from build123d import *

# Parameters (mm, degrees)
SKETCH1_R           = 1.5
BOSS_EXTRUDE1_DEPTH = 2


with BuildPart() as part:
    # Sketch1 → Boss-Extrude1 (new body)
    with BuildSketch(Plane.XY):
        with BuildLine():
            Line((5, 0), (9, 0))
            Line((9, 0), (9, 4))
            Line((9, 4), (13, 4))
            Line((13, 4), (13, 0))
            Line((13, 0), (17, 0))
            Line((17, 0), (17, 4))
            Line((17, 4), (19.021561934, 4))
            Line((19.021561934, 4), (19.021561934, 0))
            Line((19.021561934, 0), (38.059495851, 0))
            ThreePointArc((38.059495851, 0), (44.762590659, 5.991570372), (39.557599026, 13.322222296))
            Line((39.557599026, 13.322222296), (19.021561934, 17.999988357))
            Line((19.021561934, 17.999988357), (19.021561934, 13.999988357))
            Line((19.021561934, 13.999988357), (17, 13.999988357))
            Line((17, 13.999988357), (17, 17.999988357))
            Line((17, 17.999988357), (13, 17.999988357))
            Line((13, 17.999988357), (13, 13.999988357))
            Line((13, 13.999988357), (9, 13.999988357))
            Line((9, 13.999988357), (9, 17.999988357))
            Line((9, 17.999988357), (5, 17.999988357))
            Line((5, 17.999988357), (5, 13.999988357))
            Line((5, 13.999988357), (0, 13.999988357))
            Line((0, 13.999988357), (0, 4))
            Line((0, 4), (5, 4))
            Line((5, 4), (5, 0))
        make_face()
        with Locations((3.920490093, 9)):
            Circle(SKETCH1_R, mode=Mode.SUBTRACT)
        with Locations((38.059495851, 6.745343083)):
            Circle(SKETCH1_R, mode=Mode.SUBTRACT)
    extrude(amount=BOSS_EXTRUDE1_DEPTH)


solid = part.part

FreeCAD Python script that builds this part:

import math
import FreeCAD as App
import Part
import Sketcher
from FreeCAD import Vector

doc = App.newDocument("Part")
body = doc.addObject("PartDesign::Body", "Body")

# Sketch on XY plane
sketch1 = doc.addObject("Sketcher::SketchObject", "Sketch")
body.addObject(sketch1)
sketch1.AttachmentSupport = (doc.XY_Plane, [""])
sketch1.MapMode = "FlatFace"
sketch1.addGeometry([
    Part.LineSegment(Vector(5, 0, 0), Vector(9, 0, 0)),  # 0
    Part.LineSegment(Vector(9, 0, 0), Vector(9, 4, 0)),  # 1
    Part.LineSegment(Vector(9, 4, 0), Vector(13, 4, 0)),  # 2
    Part.LineSegment(Vector(13, 4, 0), Vector(13, 0, 0)),  # 3
    Part.LineSegment(Vector(13, 0, 0), Vector(17, 0, 0)),  # 4
    Part.LineSegment(Vector(17, 0, 0), Vector(17, 4, 0)),  # 5
    Part.LineSegment(Vector(17, 4, 0), Vector(19, 4, 0)),  # 6
    Part.LineSegment(Vector(19, 4, 0), Vector(19, 0, 0)),  # 7
    Part.LineSegment(Vector(19, 0, 0), Vector(38.1, 0, 0)),  # 8
    Part.ArcOfCircle(Part.Circle(Vector(38.1, 6.7, 0), Vector(0, 0, 1), 6.7), math.radians(-90), math.radians(77)),  # 9
    Part.LineSegment(Vector(39.6, 13.3, 0), Vector(19, 18, 0)),  # 10
    Part.LineSegment(Vector(19, 18, 0), Vector(19, 14, 0)),  # 11
    Part.LineSegment(Vector(19, 14, 0), Vector(17, 14, 0)),  # 12
    Part.LineSegment(Vector(17, 14, 0), Vector(17, 18, 0)),  # 13
    Part.LineSegment(Vector(17, 18, 0), Vector(13, 18, 0)),  # 14
    Part.LineSegment(Vector(13, 18, 0), Vector(13, 14, 0)),  # 15
    Part.LineSegment(Vector(13, 14, 0), Vector(9, 14, 0)),  # 16
    Part.LineSegment(Vector(9, 14, 0), Vector(9, 18, 0)),  # 17
    Part.LineSegment(Vector(9, 18, 0), Vector(5, 18, 0)),  # 18
    Part.LineSegment(Vector(5, 18, 0), Vector(5, 14, 0)),  # 19
    Part.LineSegment(Vector(5, 14, 0), Vector(0, 14, 0)),  # 20
    Part.LineSegment(Vector(0, 14, 0), Vector(0, 4, 0)),  # 21
    Part.LineSegment(Vector(0, 4, 0), Vector(5, 4, 0)),  # 22
    Part.LineSegment(Vector(5, 4, 0), Vector(5, 0, 0)),  # 23
    Part.Circle(Vector(38.1, 6.7, 0), Vector(0, 0, 1), 1.5),  # 24
    Part.Circle(Vector(3.9, 9, 0), Vector(0, 0, 1), 1.5),  # 25
], False)
sketch1.addConstraint([
    Sketcher.Constraint("Coincident", 0, 2, 1, 1),
    Sketcher.Constraint("Coincident", 1, 2, 2, 1),
    Sketcher.Constraint("Coincident", 2, 2, 3, 1),
    Sketcher.Constraint("Coincident", 3, 2, 4, 1),
    Sketcher.Constraint("Coincident", 4, 2, 5, 1),
    Sketcher.Constraint("Coincident", 5, 2, 6, 1),
    Sketcher.Constraint("Coincident", 6, 2, 7, 1),
    Sketcher.Constraint("Coincident", 7, 2, 8, 1),
    Sketcher.Constraint("Tangent", 8, 2, 9, 1),
    Sketcher.Constraint("Tangent", 9, 2, 10, 1),
    Sketcher.Constraint("Coincident", 10, 2, 11, 1),
    Sketcher.Constraint("Coincident", 11, 2, 12, 1),
    Sketcher.Constraint("Coincident", 12, 2, 13, 1),
    Sketcher.Constraint("Coincident", 13, 2, 14, 1),
    Sketcher.Constraint("Coincident", 14, 2, 15, 1),
    Sketcher.Constraint("Coincident", 15, 2, 16, 1),
    Sketcher.Constraint("Coincident", 16, 2, 17, 1),
    Sketcher.Constraint("Coincident", 17, 2, 18, 1),
    Sketcher.Constraint("Coincident", 18, 2, 19, 1),
    Sketcher.Constraint("Coincident", 19, 2, 20, 1),
    Sketcher.Constraint("Coincident", 20, 2, 21, 1),
    Sketcher.Constraint("Coincident", 21, 2, 22, 1),
    Sketcher.Constraint("Coincident", 22, 2, 23, 1),
    Sketcher.Constraint("Coincident", 23, 2, 0, 1),
    Sketcher.Constraint("Horizontal", 0),
    Sketcher.Constraint("Vertical", 1),
    Sketcher.Constraint("Horizontal", 2),
    Sketcher.Constraint("Vertical", 3),
    Sketcher.Constraint("Horizontal", 4),
    Sketcher.Constraint("Vertical", 5),
    Sketcher.Constraint("Horizontal", 6),
    Sketcher.Constraint("Vertical", 7),
    Sketcher.Constraint("Horizontal", 8),
    Sketcher.Constraint("Vertical", 11),
    Sketcher.Constraint("Horizontal", 12),
    Sketcher.Constraint("Vertical", 13),
    Sketcher.Constraint("Horizontal", 14),
    Sketcher.Constraint("Vertical", 15),
    Sketcher.Constraint("Horizontal", 16),
    Sketcher.Constraint("Vertical", 17),
    Sketcher.Constraint("Horizontal", 18),
    Sketcher.Constraint("Vertical", 19),
    Sketcher.Constraint("Horizontal", 20),
    Sketcher.Constraint("Vertical", 21),
    Sketcher.Constraint("Horizontal", 22),
    Sketcher.Constraint("Vertical", 23),
    Sketcher.Constraint("Coincident", 24, 3, 9, 3),
    Sketcher.Constraint("Equal", 24, 25),
    Sketcher.Constraint("PointOnObject", 0, 2, -1),
    Sketcher.Constraint("PointOnObject", 3, 2, -1),
    Sketcher.Constraint("PointOnObject", 7, 2, -1),
    Sketcher.Constraint("PointOnObject", 20, 2, -2),
    Sketcher.Constraint("Horizontal", 2, 2, 5, 2),
    Sketcher.Constraint("Horizontal", 10, 2, 13, 2),
    Sketcher.Constraint("Horizontal", 12, 2, 15, 2),
    Sketcher.Constraint("Horizontal", 14, 2, 17, 2),
    Sketcher.Constraint("Horizontal", 16, 2, 19, 2),
    Sketcher.Constraint("Horizontal", 6, 2, 21, 2),
    Sketcher.Constraint("Vertical", 7, 2, 10, 2),
    Sketcher.Constraint("Vertical", 5, 2, 12, 2),
    Sketcher.Constraint("Vertical", 3, 2, 14, 2),
    Sketcher.Constraint("Vertical", 1, 2, 16, 2),
    Sketcher.Constraint("Vertical", 19, 2, 22, 2),
    Sketcher.Constraint("Equal", 0, 2),
    Sketcher.Constraint("Equal", 2, 4),
    Sketcher.Constraint("Equal", 18, 1),
    Sketcher.Constraint("Equal", 7, 11),
    Sketcher.Constraint("Diameter", 24, 3.0),
    Sketcher.Constraint("DistanceX", 0, 1, 0, 2, 4.0),
    Sketcher.Constraint("DistanceX", 20, 2, 20, 1, 5.0),
    Sketcher.Constraint("DistanceY", -1, 1, 25, 3, 9.0),
    Sketcher.Constraint("Radius", 9, 6.745343),
    Sketcher.Constraint("DistanceX", 6, 1, 6, 2, 2.021562),
    Sketcher.Constraint("DistanceY", 21, 2, 21, 1, 9.999988),
    Sketcher.Constraint("DistanceX", -1, 1, 9, 2, 39.557599),
    Sketcher.Constraint("DistanceX", -1, 1, 25, 3, 3.92049),
])
pad1 = doc.addObject("PartDesign::Pad", "Pad")
body.addObject(pad1)
pad1.Profile = sketch1
pad1.Length = 2

doc.recompute()
